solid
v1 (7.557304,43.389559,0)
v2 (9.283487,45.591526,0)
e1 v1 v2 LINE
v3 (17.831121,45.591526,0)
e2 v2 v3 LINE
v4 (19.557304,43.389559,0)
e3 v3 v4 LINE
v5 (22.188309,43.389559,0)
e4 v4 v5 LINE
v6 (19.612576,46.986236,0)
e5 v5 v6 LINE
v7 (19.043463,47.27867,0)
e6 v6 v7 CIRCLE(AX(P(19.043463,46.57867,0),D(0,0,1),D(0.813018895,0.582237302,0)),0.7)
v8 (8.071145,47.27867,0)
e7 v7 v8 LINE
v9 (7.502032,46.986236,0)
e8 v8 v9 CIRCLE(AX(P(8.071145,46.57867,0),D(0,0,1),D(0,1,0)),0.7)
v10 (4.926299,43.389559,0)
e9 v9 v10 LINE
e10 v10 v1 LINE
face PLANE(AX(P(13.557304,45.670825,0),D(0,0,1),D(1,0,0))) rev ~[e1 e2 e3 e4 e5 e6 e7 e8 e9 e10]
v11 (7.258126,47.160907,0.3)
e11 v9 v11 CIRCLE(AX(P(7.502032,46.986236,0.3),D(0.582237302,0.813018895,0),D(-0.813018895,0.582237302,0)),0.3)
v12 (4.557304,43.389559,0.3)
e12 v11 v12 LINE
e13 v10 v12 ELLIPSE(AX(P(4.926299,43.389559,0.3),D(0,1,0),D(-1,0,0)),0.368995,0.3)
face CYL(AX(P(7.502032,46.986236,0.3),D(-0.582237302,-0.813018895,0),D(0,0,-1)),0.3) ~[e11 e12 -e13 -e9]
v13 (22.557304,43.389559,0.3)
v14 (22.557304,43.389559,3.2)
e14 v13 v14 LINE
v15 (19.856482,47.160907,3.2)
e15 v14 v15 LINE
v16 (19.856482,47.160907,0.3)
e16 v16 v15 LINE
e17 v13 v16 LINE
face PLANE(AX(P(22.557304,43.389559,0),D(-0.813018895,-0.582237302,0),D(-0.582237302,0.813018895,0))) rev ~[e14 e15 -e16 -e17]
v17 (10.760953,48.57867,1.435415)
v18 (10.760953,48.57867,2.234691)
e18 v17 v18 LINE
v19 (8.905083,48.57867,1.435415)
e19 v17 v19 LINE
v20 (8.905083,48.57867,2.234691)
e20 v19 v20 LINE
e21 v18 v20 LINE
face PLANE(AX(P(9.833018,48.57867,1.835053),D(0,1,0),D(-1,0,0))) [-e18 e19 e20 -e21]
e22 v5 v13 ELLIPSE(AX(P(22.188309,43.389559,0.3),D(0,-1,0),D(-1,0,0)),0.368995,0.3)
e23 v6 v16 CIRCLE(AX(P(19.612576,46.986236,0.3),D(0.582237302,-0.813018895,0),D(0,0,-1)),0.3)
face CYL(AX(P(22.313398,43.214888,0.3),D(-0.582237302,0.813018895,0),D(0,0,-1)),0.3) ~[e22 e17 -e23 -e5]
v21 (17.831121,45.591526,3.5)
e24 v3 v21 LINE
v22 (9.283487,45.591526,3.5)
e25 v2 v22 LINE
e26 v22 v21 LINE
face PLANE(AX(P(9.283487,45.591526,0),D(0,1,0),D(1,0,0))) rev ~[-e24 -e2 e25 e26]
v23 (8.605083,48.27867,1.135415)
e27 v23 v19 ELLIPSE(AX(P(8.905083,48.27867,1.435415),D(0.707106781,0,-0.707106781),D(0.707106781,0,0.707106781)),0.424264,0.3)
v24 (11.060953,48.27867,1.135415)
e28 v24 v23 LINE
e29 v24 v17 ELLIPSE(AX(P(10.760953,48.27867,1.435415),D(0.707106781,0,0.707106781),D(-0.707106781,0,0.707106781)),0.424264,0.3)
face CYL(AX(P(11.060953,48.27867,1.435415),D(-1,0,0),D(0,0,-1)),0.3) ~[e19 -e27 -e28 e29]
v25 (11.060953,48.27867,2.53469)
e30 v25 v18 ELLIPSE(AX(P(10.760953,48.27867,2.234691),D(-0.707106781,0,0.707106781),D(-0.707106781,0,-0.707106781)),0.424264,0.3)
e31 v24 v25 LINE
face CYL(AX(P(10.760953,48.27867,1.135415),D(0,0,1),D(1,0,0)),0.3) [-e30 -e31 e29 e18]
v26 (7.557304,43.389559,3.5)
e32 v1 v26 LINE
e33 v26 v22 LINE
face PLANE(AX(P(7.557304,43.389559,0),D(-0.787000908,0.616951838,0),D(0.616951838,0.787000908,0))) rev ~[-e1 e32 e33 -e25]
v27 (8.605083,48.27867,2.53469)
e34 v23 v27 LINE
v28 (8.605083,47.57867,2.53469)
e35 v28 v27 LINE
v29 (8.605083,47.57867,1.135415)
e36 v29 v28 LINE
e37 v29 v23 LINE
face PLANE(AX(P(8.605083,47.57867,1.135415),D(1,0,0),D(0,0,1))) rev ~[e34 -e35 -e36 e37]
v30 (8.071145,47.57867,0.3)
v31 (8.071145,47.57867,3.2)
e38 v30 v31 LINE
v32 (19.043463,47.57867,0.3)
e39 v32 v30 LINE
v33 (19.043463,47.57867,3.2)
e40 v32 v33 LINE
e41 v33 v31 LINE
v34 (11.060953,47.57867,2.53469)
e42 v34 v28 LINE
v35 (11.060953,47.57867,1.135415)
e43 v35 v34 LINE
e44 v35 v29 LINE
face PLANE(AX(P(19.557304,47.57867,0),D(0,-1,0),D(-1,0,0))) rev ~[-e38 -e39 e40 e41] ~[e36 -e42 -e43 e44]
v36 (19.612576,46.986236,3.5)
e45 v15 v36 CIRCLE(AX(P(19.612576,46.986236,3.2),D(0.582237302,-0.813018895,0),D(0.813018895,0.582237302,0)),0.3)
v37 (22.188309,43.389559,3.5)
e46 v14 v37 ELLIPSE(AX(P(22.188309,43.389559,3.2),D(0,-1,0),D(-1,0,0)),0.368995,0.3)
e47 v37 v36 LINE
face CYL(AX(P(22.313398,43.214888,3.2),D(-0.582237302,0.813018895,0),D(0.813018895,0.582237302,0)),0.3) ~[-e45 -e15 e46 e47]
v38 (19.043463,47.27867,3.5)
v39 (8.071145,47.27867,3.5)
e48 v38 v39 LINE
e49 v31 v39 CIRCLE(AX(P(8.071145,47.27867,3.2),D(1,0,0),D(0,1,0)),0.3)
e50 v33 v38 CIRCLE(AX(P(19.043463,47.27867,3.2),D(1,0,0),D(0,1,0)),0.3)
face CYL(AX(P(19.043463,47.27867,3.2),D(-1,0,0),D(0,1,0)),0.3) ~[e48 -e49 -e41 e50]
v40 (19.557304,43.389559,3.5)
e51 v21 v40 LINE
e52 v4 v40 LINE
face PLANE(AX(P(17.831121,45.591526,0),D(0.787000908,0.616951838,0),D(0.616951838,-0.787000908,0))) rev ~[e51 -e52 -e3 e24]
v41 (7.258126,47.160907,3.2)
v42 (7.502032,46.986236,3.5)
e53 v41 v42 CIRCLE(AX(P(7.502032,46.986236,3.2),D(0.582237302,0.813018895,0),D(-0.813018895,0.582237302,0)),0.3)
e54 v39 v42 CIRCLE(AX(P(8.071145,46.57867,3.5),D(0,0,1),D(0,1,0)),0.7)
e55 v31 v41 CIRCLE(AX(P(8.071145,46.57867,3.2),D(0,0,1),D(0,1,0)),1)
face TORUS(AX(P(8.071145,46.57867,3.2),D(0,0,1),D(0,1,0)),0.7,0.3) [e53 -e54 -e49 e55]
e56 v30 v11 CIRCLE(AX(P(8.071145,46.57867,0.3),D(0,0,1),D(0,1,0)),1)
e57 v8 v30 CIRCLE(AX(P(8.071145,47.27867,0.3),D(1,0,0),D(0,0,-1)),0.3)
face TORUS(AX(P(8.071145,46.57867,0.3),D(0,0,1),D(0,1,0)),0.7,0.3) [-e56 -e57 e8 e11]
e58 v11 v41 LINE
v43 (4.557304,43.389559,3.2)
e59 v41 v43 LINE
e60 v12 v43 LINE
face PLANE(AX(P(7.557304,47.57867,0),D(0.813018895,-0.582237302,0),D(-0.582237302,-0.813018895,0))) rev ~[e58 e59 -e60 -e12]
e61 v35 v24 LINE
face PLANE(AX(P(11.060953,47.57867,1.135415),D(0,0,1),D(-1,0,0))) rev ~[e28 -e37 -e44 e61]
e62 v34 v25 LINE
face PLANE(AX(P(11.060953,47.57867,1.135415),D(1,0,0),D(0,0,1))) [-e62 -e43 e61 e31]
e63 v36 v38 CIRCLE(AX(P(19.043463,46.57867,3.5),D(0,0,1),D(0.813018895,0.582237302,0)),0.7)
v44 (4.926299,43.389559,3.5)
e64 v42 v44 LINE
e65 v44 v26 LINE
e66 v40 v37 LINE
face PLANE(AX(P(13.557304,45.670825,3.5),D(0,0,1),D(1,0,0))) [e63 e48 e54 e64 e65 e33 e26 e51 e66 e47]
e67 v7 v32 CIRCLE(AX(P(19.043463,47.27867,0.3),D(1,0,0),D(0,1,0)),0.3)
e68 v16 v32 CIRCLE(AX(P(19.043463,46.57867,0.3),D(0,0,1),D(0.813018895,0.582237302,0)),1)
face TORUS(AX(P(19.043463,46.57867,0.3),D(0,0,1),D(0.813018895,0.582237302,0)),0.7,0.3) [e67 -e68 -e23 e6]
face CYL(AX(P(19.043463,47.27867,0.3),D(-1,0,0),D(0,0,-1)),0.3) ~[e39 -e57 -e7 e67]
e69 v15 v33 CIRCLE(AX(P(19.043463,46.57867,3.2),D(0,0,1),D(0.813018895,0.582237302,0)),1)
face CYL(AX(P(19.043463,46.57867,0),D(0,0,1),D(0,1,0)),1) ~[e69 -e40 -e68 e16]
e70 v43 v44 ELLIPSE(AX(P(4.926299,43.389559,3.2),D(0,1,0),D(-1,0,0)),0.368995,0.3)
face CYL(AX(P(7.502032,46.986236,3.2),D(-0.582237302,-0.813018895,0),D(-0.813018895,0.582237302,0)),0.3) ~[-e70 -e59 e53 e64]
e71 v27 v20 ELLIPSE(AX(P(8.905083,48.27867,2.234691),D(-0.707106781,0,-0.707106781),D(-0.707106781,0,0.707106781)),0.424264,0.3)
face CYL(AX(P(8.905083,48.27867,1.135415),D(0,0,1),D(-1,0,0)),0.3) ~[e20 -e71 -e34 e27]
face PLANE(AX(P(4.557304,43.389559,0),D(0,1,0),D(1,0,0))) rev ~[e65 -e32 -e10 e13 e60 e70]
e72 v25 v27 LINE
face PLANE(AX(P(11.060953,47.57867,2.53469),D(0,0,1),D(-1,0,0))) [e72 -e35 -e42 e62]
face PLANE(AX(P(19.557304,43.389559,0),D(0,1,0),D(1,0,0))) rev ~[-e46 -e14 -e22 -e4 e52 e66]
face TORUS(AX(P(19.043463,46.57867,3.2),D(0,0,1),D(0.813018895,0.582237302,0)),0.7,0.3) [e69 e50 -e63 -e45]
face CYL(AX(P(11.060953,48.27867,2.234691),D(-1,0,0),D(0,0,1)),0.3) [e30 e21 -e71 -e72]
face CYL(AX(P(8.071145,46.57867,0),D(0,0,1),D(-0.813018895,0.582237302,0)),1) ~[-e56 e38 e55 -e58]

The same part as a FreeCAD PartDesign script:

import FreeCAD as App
import Part
import Sketcher
from FreeCAD import Vector
Q = App.Units.Quantity


def edges_at(feature, points):
    """Names of the edges that pass closest to the given points."""
    edges = feature.Shape.Edges
    near = lambda p: min(range(len(edges)), key=lambda i: edges[i].distToShape(Part.Vertex(*p))[0])
    return sorted({f"Edge{near(p) + 1}" for p in points})


def add_polygon(sketch, points):
    """Adds a closed chain of lines whose ends are joined by coincident constraints."""
    first, n = sketch.GeometryCount, len(points)
    for a, b in zip(points, points[1:] + points[:1]):
        sketch.addGeometry(Part.LineSegment(App.Vector(*a, 0), App.Vector(*b, 0)), False)
    for i in range(n):
        sketch.addConstraint(Sketcher.Constraint("Coincident", first + i, 2, first + (i + 1) % n, 1))

doc = App.newDocument("Part")
body = doc.addObject("PartDesign::Body", "Body")

# Sketch on XY plane
sketch1 = body.newObject("Sketcher::SketchObject", "Sketch")
sketch1.AttachmentSupport = (doc.getObject("XY_Plane"), [""])
sketch1.MapMode = "FlatFace"
add_polygon(sketch1, [(7.6, 47.6), (4.6, 43.4), (7.6, 43.4), (9.3, 45.6), (17.8, 45.6), (19.6, 43.4), (22.6, 43.4), (19.6, 47.6)])  # lines 0-7
sketch1.addConstraint(Sketcher.Constraint("Horizontal", 1))
sketch1.addConstraint(Sketcher.Constraint("Horizontal", 3))
sketch1.addConstraint(Sketcher.Constraint("Horizontal", 5))
sketch1.addConstraint(Sketcher.Constraint("Horizontal", 7))
sketch1.addConstraint(Sketcher.Constraint("Horizontal", 1, 2, 4, 2))
sketch1.addConstraint(Sketcher.Constraint("Vertical", 4, 2, 6, 2))
sketch1.addConstraint(Sketcher.Constraint("Vertical", 1, 2, 7, 2))
sketch1.addConstraint(Sketcher.Constraint("Equal", 1, 5))
sketch1.addConstraint(Sketcher.Constraint("Equal", 2, 4))
sketch1.addConstraint(Sketcher.Constraint("DistanceX", 1, 1, 1, 2, Q("3 mm")))
sketch1.addConstraint(Sketcher.Constraint("DistanceX", 7, 2, 7, 1, Q("12 mm")))
sketch1.addConstraint(Sketcher.Constraint("Distance", 0, Q("5.152538 mm")))
sketch1.addConstraint(Sketcher.Constraint("Distance", 2, Q("2.797922 mm")))
sketch1.addConstraint(Sketcher.Constraint("DistanceX", 3, 1, 3, 2, Q("8.547634 mm")))
sketch1.addConstraint(Sketcher.Constraint("DistanceY", -1, 1, 0, 2, Q("43.389559 mm")))
sketch1.addConstraint(Sketcher.Constraint("DistanceX", -1, 1, 3, 2, Q("17.831121 mm")))
pad1 = body.newObject("PartDesign::Pad", "Pad")
pad1.Profile = sketch1
pad1.Length = 3.5

# Sketch on XZ plane
sketch2 = body.newObject("Sketcher::SketchObject", "Sketch001")
sketch2.AttachmentSupport = (doc.getObject("XZ_Plane"), [""])
sketch2.MapMode = "FlatFace"
sketch2.AttachmentOffset = App.Placement(Vector(0, 0, -47.57867), App.Rotation())
add_polygon(sketch2, [(11.1, 2.5), (11.1, 1.1), (8.6, 1.1), (8.6, 2.5)])  # lines 0-3
sketch2.addConstraint(Sketcher.Constraint("Vertical", 0))
sketch2.addConstraint(Sketcher.Constraint("Horizontal", 1))
sketch2.addConstraint(Sketcher.Constraint("Vertical", 2))
sketch2.addConstraint(Sketcher.Constraint("Horizontal", 3))
sketch2.addConstraint(Sketcher.Constraint("DistanceX", 1, 2, 1, 1, Q("2.45587 mm")))
sketch2.addConstraint(Sketcher.Constraint("DistanceY", 0, 2, 0, 1, Q("1.399275 mm")))
sketch2.addConstraint(Sketcher.Constraint("DistanceY", -1, 1, 2, 2, Q("2.53469 mm")))
sketch2.addConstraint(Sketcher.Constraint("DistanceX", -1, 1, 0, 2, Q("11.060953 mm")))
pad2 = body.newObject("PartDesign::Pad", "Pad001")
pad2.Profile = sketch2
pad2.Length = 1
pad2.Reversed = True
doc.recompute()

fillet = body.newObject("PartDesign::Fillet", "Fillet")
fillet.Base = (pad2, edges_at(pad2, [(7.557, 47.579, 1.75), (19.557, 47.579, 1.75)]))
fillet.Radius = 1
doc.recompute()

fillet2 = body.newObject("PartDesign::Fillet", "Fillet001")
fillet2.Base = (fillet, edges_at(fillet, [
    (5.908, 45.275, 3.5),
    (13.557, 47.579, 0),
    (9.833, 48.579, 2.535),
    (11.061, 48.579, 1.835),
    (8.605, 48.579, 1.835),
    (9.833, 48.579, 1.135),
]))
fillet2.Radius = 0.3

doc.recompute()
